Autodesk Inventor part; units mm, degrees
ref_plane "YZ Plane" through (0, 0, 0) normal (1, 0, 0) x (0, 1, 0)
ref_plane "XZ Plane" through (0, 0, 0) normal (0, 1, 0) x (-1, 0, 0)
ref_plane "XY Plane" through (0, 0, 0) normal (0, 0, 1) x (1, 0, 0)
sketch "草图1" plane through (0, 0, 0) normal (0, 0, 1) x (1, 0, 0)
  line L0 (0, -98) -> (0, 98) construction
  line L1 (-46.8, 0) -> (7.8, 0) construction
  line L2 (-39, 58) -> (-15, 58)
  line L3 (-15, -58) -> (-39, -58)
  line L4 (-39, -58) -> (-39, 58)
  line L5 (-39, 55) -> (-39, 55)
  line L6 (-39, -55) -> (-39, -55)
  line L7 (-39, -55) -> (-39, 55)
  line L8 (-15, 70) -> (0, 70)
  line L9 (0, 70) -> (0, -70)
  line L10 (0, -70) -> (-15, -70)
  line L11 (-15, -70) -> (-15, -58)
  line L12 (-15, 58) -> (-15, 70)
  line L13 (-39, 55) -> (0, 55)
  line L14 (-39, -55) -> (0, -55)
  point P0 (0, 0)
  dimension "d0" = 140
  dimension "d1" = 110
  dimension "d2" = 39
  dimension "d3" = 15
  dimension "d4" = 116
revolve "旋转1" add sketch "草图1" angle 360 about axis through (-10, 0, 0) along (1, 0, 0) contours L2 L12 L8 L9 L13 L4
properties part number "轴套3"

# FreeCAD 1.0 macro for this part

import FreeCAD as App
import Part
import Sketcher
Q = App.Units.Quantity


def add_polygon(sketch, points):
    """Adds a closed chain of lines whose ends are joined by coincident constraints."""
    first, n = sketch.GeometryCount, len(points)
    for a, b in zip(points, points[1:] + points[:1]):
        sketch.addGeometry(Part.LineSegment(App.Vector(*a, 0), App.Vector(*b, 0)), False)
    for i in range(n):
        sketch.addConstraint(Sketcher.Constraint("Coincident", first + i, 2, first + (i + 1) % n, 1))

doc = App.newDocument("Part")
body = doc.addObject("PartDesign::Body", "Body")

# Sketch on XY plane
sketch1 = doc.addObject("Sketcher::SketchObject", "Sketch")
body.addObject(sketch1)
sketch1.AttachmentSupport = (doc.XY_Plane, [""])
sketch1.MapMode = "FlatFace"
add_polygon(sketch1, [(-15, 58), (-39, 58), (-39, 55), (0, 55), (0, 70), (-15, 70)])  # lines 0-5
sketch1.addConstraint([
    Sketcher.Constraint("Horizontal", 0),
    Sketcher.Constraint("Vertical", 1),
    Sketcher.Constraint("Horizontal", 2),
    Sketcher.Constraint("Vertical", 3),
    Sketcher.Constraint("Horizontal", 4),
    Sketcher.Constraint("Vertical", 5),
    Sketcher.Constraint("PointOnObject", 2, 2, -2),
    Sketcher.Constraint("Equal", 4, 3),
    Sketcher.Constraint("DistanceX", 2, 1, 2, 2, Q("39 mm")),
    Sketcher.Constraint("DistanceX", 4, 2, 4, 1, Q("15 mm")),
    Sketcher.Constraint("DistanceY", 1, 2, 1, 1, Q("3 mm")),
    Sketcher.Constraint("DistanceY", -1, 1, 0, 2, Q("58 mm")),
])
revolution = doc.addObject("PartDesign::Revolution", "Revolution")
body.addObject(revolution)
revolution.Profile = sketch1
revolution.ReferenceAxis = (sketch1, ["H_Axis"])
revolution.Angle = 360

doc.recompute()
